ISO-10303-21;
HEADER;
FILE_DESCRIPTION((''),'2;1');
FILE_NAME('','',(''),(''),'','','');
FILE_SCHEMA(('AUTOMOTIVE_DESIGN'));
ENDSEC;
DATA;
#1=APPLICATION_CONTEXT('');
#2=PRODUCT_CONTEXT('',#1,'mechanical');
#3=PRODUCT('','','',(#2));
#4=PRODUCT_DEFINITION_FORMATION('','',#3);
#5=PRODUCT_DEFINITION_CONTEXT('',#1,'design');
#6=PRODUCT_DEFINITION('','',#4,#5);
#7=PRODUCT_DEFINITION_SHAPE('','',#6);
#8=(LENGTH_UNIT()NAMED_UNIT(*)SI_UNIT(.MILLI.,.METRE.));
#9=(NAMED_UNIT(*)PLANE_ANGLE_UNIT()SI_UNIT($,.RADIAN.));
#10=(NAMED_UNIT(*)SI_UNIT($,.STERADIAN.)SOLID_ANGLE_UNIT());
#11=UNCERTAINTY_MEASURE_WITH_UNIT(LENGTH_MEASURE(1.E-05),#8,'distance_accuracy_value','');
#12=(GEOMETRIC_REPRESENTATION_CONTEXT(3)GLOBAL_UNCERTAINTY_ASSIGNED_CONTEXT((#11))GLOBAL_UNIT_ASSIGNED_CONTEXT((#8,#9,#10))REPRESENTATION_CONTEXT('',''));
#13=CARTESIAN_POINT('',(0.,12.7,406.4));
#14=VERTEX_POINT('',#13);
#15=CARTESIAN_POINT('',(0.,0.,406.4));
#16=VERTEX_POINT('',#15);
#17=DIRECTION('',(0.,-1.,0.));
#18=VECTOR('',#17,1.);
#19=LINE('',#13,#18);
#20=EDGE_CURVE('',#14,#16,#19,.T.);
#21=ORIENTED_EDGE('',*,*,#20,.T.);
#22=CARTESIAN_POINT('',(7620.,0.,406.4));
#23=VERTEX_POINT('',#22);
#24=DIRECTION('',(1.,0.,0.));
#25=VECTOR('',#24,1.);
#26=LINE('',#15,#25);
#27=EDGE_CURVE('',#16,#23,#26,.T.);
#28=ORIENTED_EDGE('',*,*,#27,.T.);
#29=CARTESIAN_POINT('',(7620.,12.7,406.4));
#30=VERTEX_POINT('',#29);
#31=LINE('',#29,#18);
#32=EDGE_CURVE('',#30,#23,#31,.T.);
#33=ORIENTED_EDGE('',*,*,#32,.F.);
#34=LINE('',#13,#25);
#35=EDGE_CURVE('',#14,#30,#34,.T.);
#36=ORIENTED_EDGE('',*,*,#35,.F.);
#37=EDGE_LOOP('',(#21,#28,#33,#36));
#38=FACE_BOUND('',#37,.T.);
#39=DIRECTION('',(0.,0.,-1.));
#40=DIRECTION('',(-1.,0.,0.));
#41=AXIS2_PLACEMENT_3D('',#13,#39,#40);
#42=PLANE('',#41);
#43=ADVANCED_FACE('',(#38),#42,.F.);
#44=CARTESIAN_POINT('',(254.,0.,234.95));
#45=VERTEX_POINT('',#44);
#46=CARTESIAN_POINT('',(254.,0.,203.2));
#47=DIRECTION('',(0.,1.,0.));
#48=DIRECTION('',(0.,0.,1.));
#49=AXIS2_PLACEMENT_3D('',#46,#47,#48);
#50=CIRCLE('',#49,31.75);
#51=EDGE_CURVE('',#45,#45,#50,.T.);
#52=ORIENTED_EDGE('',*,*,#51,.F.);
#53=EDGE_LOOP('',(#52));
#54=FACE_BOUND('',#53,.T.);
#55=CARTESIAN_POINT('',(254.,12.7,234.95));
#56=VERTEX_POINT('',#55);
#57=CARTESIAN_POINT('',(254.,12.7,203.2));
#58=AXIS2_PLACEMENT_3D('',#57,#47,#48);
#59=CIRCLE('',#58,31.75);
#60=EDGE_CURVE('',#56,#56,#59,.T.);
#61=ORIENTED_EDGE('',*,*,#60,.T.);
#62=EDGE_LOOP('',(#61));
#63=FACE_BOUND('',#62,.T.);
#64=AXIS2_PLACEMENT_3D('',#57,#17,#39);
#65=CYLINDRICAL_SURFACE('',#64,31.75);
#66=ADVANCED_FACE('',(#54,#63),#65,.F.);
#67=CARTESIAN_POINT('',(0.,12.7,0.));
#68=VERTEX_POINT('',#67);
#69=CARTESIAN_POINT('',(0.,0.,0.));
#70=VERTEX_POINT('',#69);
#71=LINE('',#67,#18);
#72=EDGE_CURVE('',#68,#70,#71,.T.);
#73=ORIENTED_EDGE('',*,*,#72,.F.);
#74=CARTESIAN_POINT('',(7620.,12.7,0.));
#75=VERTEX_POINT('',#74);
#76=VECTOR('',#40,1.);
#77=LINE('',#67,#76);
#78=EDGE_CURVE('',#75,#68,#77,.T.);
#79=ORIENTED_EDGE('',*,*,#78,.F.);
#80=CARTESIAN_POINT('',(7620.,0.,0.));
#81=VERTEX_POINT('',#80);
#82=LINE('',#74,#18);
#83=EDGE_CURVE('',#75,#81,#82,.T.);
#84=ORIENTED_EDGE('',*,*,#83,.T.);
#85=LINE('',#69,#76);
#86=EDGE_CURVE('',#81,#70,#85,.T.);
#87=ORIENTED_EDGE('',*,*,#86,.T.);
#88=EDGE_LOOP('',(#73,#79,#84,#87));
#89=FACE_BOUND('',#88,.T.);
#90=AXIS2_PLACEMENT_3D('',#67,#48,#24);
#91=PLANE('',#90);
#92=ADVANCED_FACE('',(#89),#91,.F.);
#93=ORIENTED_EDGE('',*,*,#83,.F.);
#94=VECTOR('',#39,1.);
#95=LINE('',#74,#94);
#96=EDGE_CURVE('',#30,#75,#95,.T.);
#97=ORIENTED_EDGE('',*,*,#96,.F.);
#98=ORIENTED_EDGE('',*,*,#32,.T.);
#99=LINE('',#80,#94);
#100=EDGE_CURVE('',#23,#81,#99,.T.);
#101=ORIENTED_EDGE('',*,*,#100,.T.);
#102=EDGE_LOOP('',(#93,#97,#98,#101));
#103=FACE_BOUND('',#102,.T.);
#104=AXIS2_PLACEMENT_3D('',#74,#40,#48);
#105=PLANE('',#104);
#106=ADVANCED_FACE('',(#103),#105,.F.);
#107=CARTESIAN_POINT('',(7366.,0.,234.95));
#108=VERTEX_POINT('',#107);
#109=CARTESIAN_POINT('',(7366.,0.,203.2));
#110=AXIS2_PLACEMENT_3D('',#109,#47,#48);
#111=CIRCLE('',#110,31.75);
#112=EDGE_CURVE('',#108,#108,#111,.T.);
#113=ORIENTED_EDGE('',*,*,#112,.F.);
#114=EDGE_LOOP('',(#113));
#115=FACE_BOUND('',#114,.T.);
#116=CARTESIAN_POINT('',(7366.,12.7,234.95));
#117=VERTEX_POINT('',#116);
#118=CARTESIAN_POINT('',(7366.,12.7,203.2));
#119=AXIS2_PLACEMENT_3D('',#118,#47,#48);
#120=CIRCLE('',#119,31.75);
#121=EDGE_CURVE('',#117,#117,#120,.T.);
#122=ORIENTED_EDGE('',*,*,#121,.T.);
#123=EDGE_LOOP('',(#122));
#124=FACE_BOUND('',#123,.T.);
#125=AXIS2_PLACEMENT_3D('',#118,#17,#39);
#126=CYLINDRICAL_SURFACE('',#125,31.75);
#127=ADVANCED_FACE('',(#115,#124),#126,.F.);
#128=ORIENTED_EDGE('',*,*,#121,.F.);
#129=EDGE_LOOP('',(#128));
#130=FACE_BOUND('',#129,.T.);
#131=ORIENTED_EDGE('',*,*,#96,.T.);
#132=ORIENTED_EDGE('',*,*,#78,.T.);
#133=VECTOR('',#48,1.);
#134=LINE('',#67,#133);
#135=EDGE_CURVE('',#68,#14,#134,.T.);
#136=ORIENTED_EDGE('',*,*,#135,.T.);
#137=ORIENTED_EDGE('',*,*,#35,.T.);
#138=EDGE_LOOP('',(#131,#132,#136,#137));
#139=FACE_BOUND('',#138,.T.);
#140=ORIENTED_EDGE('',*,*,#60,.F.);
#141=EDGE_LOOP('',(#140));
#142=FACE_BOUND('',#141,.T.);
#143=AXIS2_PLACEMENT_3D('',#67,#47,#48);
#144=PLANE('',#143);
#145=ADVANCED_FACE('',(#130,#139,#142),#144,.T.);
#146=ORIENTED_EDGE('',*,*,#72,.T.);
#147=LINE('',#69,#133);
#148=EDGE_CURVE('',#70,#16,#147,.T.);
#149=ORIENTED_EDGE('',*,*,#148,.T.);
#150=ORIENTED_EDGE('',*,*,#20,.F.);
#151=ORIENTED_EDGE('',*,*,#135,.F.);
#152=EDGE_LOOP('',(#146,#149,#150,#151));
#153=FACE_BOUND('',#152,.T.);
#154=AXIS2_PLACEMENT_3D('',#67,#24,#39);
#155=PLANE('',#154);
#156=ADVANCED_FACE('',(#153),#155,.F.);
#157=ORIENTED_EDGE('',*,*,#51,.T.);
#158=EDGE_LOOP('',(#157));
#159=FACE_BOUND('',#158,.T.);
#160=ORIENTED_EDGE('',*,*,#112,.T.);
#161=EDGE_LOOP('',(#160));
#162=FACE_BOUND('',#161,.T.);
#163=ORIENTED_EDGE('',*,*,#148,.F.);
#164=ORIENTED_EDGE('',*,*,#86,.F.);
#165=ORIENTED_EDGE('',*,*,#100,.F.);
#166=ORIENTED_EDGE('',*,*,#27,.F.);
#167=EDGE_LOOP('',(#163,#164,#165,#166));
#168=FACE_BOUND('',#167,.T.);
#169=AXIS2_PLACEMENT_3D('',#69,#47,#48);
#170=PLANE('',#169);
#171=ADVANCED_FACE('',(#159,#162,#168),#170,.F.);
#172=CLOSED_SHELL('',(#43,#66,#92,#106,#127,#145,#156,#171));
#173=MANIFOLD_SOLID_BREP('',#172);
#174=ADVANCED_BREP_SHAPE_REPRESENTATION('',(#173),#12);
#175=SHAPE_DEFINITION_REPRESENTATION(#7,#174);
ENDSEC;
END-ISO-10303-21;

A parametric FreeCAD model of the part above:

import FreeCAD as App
import Part
import Sketcher

V = App.Vector
Q = App.Units.Quantity

doc = App.newDocument("Part")
body = doc.addObject("PartDesign::Body", "Body")

# Sketch on XZ plane
sketch1 = doc.addObject("Sketcher::SketchObject", "Sketch")
body.addObject(sketch1)
sketch1.AttachmentSupport = (doc.XZ_Plane, [""])
sketch1.MapMode = "FlatFace"
sketch1.addGeometry([
    Part.LineSegment(V(0, 0, 0), V(0, 406, 0)),  # 0
    Part.LineSegment(V(0, 406, 0), V(7620, 406, 0)),  # 1
    Part.LineSegment(V(7620, 406, 0), V(7620, 0, 0)),  # 2
    Part.LineSegment(V(7620, 0, 0), V(0, 0, 0)),  # 3
    Part.Circle(V(254, 203, 0), V(0, 0, 1), 32),  # 4
    Part.Circle(V(7366, 203, 0), V(0, 0, 1), 32),  # 5
], False)
sketch1.addConstraint([
    Sketcher.Constraint("Coincident", 0, 2, 1, 1),
    Sketcher.Constraint("Coincident", 1, 2, 2, 1),
    Sketcher.Constraint("Coincident", 2, 2, 3, 1),
    Sketcher.Constraint("Coincident", 3, 2, 0, 1),
    Sketcher.Constraint("Vertical", 0),
    Sketcher.Constraint("Horizontal", 1),
    Sketcher.Constraint("Vertical", 2),
    Sketcher.Constraint("Horizontal", 3),
    Sketcher.Constraint("Coincident", 3, 2, -1, 1),
    Sketcher.Constraint("Equal", 4, 5),
    Sketcher.Constraint("Horizontal", 4, 3, 5, 3),
    Sketcher.Constraint("Diameter", 4, Q("2.5 in")),
    Sketcher.Constraint("DistanceX", 1, 1, 1, 2, Q("300 in")),
    Sketcher.Constraint("DistanceY", 0, 1, 0, 2, Q("16 in")),
    Sketcher.Constraint("DistanceX", -1, 1, 4, 3, Q("10 in")),
    Sketcher.Constraint("DistanceY", -1, 1, 4, 3, Q("8 in")),
    Sketcher.Constraint("DistanceX", -1, 1, 5, 3, Q("290 in")),
])
pad1 = doc.addObject("PartDesign::Pad", "Pad")
body.addObject(pad1)
pad1.Profile = sketch1
pad1.Length = Q("0.5 in")
pad1.Reversed = True

doc.recompute()
